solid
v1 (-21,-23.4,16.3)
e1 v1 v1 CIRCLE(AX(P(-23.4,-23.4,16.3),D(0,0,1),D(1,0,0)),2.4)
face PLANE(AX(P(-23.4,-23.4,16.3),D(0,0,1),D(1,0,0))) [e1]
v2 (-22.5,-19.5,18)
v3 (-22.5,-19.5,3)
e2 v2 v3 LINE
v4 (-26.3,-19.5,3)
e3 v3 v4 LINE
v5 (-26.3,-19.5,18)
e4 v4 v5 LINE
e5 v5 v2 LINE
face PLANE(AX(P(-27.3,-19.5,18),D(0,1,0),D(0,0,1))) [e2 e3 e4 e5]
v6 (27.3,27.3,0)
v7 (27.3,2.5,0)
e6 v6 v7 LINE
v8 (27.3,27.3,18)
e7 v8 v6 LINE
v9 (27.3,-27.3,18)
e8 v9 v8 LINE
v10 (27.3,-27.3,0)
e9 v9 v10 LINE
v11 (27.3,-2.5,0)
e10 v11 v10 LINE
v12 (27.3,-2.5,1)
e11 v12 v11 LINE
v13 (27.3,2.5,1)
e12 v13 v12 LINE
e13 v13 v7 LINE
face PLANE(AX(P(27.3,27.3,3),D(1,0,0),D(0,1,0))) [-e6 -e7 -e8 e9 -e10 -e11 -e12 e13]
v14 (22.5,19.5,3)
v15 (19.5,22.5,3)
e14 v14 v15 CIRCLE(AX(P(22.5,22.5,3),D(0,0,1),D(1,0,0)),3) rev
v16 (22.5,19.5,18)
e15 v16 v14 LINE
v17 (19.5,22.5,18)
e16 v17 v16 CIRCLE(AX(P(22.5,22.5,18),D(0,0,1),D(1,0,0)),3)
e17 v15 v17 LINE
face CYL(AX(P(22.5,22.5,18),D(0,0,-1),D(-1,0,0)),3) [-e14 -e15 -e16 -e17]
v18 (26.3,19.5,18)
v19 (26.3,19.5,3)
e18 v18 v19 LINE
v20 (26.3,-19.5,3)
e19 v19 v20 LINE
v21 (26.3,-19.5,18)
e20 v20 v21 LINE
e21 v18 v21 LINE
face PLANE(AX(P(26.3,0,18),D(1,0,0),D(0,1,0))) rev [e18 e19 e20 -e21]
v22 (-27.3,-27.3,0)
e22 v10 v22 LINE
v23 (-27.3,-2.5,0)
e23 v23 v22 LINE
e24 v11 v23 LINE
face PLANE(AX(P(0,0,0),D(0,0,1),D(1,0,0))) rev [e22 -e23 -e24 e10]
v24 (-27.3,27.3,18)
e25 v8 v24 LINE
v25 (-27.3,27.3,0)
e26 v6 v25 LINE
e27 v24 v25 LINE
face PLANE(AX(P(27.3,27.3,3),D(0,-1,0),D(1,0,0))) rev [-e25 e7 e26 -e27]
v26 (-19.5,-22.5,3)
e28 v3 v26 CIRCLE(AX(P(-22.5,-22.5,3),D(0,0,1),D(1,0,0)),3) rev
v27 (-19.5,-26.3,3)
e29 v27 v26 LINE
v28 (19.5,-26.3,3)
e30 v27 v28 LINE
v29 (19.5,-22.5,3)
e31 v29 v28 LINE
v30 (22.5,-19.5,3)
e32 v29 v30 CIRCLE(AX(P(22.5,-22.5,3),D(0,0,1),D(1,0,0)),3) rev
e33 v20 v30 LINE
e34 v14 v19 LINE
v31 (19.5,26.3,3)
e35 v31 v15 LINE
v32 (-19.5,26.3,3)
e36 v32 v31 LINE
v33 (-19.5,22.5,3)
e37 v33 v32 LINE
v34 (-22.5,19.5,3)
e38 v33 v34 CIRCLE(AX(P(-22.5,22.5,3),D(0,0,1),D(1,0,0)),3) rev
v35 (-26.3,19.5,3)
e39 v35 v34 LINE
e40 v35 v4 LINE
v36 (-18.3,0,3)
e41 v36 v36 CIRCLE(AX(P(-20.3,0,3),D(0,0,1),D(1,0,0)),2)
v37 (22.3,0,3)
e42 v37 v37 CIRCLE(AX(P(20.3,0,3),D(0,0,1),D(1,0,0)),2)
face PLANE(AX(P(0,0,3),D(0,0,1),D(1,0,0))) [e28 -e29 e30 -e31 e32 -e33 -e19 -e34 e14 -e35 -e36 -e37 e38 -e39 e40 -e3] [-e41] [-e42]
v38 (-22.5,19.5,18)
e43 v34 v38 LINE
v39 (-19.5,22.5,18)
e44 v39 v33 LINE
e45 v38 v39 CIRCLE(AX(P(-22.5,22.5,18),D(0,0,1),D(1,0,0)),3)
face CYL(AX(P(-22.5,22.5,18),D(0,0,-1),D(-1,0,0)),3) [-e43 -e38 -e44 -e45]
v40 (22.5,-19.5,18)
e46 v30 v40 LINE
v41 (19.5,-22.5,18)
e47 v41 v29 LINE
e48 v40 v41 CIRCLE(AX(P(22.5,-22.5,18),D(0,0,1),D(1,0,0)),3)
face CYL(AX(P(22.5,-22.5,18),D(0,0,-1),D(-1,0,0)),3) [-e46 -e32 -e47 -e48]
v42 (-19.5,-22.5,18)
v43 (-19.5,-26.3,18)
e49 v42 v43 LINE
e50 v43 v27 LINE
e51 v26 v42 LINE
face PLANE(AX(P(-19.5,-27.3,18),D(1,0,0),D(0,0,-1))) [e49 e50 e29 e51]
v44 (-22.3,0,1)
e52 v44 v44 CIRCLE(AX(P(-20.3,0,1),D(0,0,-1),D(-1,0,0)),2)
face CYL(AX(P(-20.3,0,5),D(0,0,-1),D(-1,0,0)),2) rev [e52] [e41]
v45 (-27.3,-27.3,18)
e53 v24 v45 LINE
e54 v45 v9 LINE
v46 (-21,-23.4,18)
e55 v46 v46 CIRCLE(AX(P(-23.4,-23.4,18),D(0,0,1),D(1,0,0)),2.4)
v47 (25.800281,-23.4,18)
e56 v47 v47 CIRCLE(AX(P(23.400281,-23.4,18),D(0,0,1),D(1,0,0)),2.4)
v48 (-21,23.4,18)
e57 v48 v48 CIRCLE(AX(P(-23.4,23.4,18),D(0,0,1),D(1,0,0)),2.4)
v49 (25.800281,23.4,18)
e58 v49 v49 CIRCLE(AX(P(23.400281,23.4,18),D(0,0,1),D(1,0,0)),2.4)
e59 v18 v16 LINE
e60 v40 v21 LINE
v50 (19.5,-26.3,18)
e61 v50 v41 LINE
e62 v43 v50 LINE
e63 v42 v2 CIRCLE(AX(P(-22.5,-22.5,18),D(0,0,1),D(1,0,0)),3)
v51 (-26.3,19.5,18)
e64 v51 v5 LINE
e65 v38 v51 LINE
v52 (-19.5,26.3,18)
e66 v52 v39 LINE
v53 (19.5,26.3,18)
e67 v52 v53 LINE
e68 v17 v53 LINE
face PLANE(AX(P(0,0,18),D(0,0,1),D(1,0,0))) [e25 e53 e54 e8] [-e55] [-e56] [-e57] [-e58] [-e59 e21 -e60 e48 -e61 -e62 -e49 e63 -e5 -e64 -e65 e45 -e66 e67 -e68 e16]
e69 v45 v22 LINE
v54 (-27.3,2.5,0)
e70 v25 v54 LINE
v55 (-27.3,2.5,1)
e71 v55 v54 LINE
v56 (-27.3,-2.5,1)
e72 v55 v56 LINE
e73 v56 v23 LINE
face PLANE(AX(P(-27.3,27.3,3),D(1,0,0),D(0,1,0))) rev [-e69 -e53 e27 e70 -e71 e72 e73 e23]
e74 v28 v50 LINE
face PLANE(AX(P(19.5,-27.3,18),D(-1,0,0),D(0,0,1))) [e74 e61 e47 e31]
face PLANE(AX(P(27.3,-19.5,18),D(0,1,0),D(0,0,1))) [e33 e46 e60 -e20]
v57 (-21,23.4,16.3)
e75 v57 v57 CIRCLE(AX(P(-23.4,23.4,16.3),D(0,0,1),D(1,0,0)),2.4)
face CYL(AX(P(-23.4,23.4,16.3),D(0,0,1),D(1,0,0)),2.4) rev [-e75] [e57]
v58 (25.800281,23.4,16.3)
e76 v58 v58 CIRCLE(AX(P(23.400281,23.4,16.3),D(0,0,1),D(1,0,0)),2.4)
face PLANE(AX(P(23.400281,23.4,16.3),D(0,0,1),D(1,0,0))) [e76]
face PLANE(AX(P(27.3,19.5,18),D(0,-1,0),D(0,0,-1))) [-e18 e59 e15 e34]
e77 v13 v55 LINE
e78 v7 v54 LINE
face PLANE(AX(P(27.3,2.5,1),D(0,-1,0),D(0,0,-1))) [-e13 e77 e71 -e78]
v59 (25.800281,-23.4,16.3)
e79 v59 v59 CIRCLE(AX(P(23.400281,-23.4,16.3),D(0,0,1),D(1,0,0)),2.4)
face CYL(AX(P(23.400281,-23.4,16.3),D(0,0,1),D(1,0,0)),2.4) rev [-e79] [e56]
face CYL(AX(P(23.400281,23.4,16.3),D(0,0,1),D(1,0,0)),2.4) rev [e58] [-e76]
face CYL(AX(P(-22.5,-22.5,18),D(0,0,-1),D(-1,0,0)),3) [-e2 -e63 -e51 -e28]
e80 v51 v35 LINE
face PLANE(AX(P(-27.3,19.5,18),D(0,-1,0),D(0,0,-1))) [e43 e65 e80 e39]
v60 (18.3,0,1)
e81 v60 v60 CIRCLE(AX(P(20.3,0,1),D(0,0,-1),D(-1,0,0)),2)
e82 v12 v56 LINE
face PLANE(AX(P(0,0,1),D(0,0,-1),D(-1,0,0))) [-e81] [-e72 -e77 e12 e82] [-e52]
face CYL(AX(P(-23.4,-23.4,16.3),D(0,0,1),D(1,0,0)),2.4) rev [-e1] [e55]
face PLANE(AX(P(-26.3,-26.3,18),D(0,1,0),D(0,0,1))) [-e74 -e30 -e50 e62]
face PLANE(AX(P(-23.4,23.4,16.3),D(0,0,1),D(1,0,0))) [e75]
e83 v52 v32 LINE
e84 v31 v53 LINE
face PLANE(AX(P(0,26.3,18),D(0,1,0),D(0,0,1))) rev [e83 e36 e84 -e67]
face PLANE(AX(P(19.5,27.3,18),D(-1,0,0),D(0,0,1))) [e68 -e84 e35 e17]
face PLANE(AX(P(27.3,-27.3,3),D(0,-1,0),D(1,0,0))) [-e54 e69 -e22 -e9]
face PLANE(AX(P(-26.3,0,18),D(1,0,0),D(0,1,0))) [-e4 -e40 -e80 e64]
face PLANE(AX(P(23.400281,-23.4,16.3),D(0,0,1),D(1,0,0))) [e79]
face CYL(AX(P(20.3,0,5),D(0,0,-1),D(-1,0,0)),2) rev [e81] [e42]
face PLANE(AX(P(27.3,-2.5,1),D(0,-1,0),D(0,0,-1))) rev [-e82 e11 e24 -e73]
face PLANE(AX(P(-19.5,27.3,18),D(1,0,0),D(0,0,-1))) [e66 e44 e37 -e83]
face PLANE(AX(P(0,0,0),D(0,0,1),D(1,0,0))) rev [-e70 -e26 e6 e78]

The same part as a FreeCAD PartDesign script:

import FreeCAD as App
import Part
import Sketcher
from FreeCAD import Vector
Q = App.Units.Quantity


def edges_at(feature, points):
    """Names of the edges that pass closest to the given points."""
    edges = feature.Shape.Edges
    near = lambda p: min(range(len(edges)), key=lambda i: edges[i].distToShape(Part.Vertex(*p))[0])
    return sorted({f"Edge{near(p) + 1}" for p in points})

doc = App.newDocument("Part")
body = doc.addObject("PartDesign::Body", "Body")

sketch1 = body.newObject("Sketcher::SketchObject", "Sketch")
sketch1.AttachmentSupport = (doc.getObject("XY_Plane"), [""])
sketch1.MapMode = "FlatFace"
sketch1.addGeometry([
    Part.LineSegment(Vector(-27.3, 27.3, 0), Vector(-27.3, -27.3, 0)),
    Part.LineSegment(Vector(-27.3, -27.3, 0), Vector(27.3, -27.3, 0)),
    Part.LineSegment(Vector(27.3, -27.3, 0), Vector(27.3, 27.3, 0)),
    Part.LineSegment(Vector(27.3, 27.3, 0), Vector(-27.3, 27.3, 0)),
], False)
sketch1.addConstraint([
    Sketcher.Constraint("Coincident", 0, 2, 1, 1),
    Sketcher.Constraint("Coincident", 1, 2, 2, 1),
    Sketcher.Constraint("Coincident", 2, 2, 3, 1),
    Sketcher.Constraint("Coincident", 3, 2, 0, 1),
    Sketcher.Constraint("Vertical", 0),
    Sketcher.Constraint("Horizontal", 1),
    Sketcher.Constraint("Vertical", 2),
    Sketcher.Constraint("Horizontal", 3),
    Sketcher.Constraint("Symmetric", 0, 2, 2, 2, -1, 1),
    Sketcher.Constraint("Equal", 3, 0),
    Sketcher.Constraint("DistanceX", 1, 1, 1, 2, Q("54.6 mm")),
])
pad1 = body.newObject("PartDesign::Pad", "Pad")
pad1.Profile = sketch1
pad1.Length = 3

sketch2 = body.newObject("Sketcher::SketchObject", "Sketch001")
sketch2.AttachmentSupport = (doc.getObject("XY_Plane"), [""])
sketch2.MapMode = "FlatFace"
sketch2.addGeometry([
    Part.LineSegment(Vector(27.3, 2.5, 0), Vector(27.3, -2.5, 0)),
    Part.LineSegment(Vector(27.3, -2.5, 0), Vector(-27.3, -2.5, 0)),
    Part.LineSegment(Vector(-27.3, -2.5, 0), Vector(-27.3, 2.5, 0)),
    Part.LineSegment(Vector(-27.3, 2.5, 0), Vector(27.3, 2.5, 0)),
], False)
sketch2.addConstraint([
    Sketcher.Constraint("Coincident", 0, 2, 1, 1),
    Sketcher.Constraint("Coincident", 1, 2, 2, 1),
    Sketcher.Constraint("Coincident", 2, 2, 3, 1),
    Sketcher.Constraint("Coincident", 3, 2, 0, 1),
    Sketcher.Constraint("Vertical", 0),
    Sketcher.Constraint("Horizontal", 1),
    Sketcher.Constraint("Vertical", 2),
    Sketcher.Constraint("Horizontal", 3),
    Sketcher.Constraint("Symmetric", 0, 2, 2, 2, -1, 1),
    Sketcher.Constraint("DistanceY", 0, 2, 0, 1, Q("5 mm")),
    Sketcher.Constraint("DistanceX", 1, 2, 1, 1, Q("54.6 mm")),
])
pocket1 = body.newObject("PartDesign::Pocket", "Pocket")
pocket1.Profile = sketch2
pocket1.Length = 1
pocket1.Reversed = True

sketch3 = body.newObject("Sketcher::SketchObject", "Sketch002")
sketch3.AttachmentSupport = (doc.getObject("XY_Plane"), [""])
sketch3.MapMode = "FlatFace"
sketch3.AttachmentOffset = App.Placement(Vector(0, 0, 3), App.Rotation())
sketch3.addGeometry([
    Part.LineSegment(Vector(27.3, 27.3, 0), Vector(-27.3, 27.3, 0)),
    Part.LineSegment(Vector(-27.3, 27.3, 0), Vector(-27.3, -27.3, 0)),
    Part.LineSegment(Vector(-27.3, -27.3, 0), Vector(27.3, -27.3, 0)),
    Part.LineSegment(Vector(27.3, -27.3, 0), Vector(27.3, 27.3, 0)),
    Part.LineSegment(Vector(-26.3, -26.3, 0), Vector(-26.3, 26.3, 0)),
    Part.LineSegment(Vector(-26.3, 26.3, 0), Vector(26.3, 26.3, 0)),
    Part.LineSegment(Vector(26.3, 26.3, 0), Vector(26.3, -26.3, 0)),
    Part.LineSegment(Vector(26.3, -26.3, 0), Vector(-26.3, -26.3, 0)),
], False)
sketch3.addConstraint([
    Sketcher.Constraint("Coincident", 0, 2, 1, 1),
    Sketcher.Constraint("Coincident", 1, 2, 2, 1),
    Sketcher.Constraint("Coincident", 2, 2, 3, 1),
    Sketcher.Constraint("Coincident", 3, 2, 0, 1),
    Sketcher.Constraint("Coincident", 4, 2, 5, 1),
    Sketcher.Constraint("Coincident", 5, 2, 6, 1),
    Sketcher.Constraint("Coincident", 6, 2, 7, 1),
    Sketcher.Constraint("Coincident", 7, 2, 4, 1),
    Sketcher.Constraint("Horizontal", 0),
    Sketcher.Constraint("Vertical", 1),
    Sketcher.Constraint("Horizontal", 2),
    Sketcher.Constraint("Vertical", 3),
    Sketcher.Constraint("Vertical", 4),
    Sketcher.Constraint("Horizontal", 5),
    Sketcher.Constraint("Vertical", 6),
    Sketcher.Constraint("Horizontal", 7),
    Sketcher.Constraint("Symmetric", 0, 2, 2, 2, -1, 1),
    Sketcher.Constraint("Symmetric", 4, 2, 6, 2, -1, 1),
    Sketcher.Constraint("Equal", 2, 1),
    Sketcher.Constraint("Equal", 7, 4),
    Sketcher.Constraint("DistanceX", 0, 2, 0, 1, Q("54.6 mm")),
    Sketcher.Constraint("DistanceX", 5, 1, 5, 2, Q("52.6 mm")),
])
pad2 = body.newObject("PartDesign::Pad", "Pad001")
pad2.Profile = sketch3
pad2.Length = 15

sketch4 = body.newObject("Sketcher::SketchObject", "Sketch003")
sketch4.AttachmentSupport = (doc.getObject("XY_Plane"), [""])
sketch4.MapMode = "FlatFace"
sketch4.AttachmentOffset = App.Placement(Vector(0, 0, 1), App.Rotation())
sketch4.addGeometry([
    Part.Circle(Vector(20.3, 0, 0), Vector(0, 0, 1), 2),
    Part.Circle(Vector(-20.3, 0, 0), Vector(0, 0, 1), 2),
], False)
sketch4.addConstraint([
    Sketcher.Constraint("Equal", 0, 1),
    Sketcher.Constraint("Symmetric", 0, 3, 1, 3, -1, 1),
    Sketcher.Constraint("PointOnObject", 0, 3, -1),
    Sketcher.Constraint("Diameter", 0, Q("4 mm")),
    Sketcher.Constraint("DistanceX", -1, 1, 0, 3, Q("20.3 mm")),
])
pocket2 = body.newObject("PartDesign::Pocket", "Pocket001")
pocket2.Profile = sketch4
pocket2.Length = 4
pocket2.Reversed = True

sketch5 = body.newObject("Sketcher::SketchObject", "Sketch004")
sketch5.AttachmentSupport = (doc.getObject("XY_Plane"), [""])
sketch5.MapMode = "FlatFace"
sketch5.addGeometry([
    Part.LineSegment(Vector(27.3, 27.3, 0), Vector(27.3, 19.5, 0)),
    Part.LineSegment(Vector(27.3, 19.5, 0), Vector(19.5, 19.5, 0)),
    Part.LineSegment(Vector(19.5, 19.5, 0), Vector(19.5, 27.3, 0)),
    Part.LineSegment(Vector(19.5, 27.3, 0), Vector(27.3, 27.3, 0)),
    Part.LineSegment(Vector(-19.5, 27.3, 0), Vector(-19.5, 19.5, 0)),
    Part.LineSegment(Vector(-19.5, 19.5, 0), Vector(-27.3, 19.5, 0)),
    Part.LineSegment(Vector(-27.3, 19.5, 0), Vector(-27.3, 27.3, 0)),
    Part.LineSegment(Vector(-27.3, 27.3, 0), Vector(-19.5, 27.3, 0)),
    Part.LineSegment(Vector(27.3, -19.5, 0), Vector(27.3, -27.3, 0)),
    Part.LineSegment(Vector(27.3, -27.3, 0), Vector(19.5, -27.3, 0)),
    Part.LineSegment(Vector(19.5, -27.3, 0), Vector(19.5, -19.5, 0)),
    Part.LineSegment(Vector(19.5, -19.5, 0), Vector(27.3, -19.5, 0)),
    Part.LineSegment(Vector(-19.5, -19.5, 0), Vector(-19.5, -27.3, 0)),
    Part.LineSegment(Vector(-19.5, -27.3, 0), Vector(-27.3, -27.3, 0)),
    Part.LineSegment(Vector(-27.3, -27.3, 0), Vector(-27.3, -19.5, 0)),
    Part.LineSegment(Vector(-27.3, -19.5, 0), Vector(-19.5, -19.5, 0)),
], False)
sketch5.addConstraint([
    Sketcher.Constraint("Coincident", 0, 2, 1, 1),
    Sketcher.Constraint("Coincident", 1, 2, 2, 1),
    Sketcher.Constraint("Coincident", 2, 2, 3, 1),
    Sketcher.Constraint("Coincident", 3, 2, 0, 1),
    Sketcher.Constraint("Coincident", 4, 2, 5, 1),
    Sketcher.Constraint("Coincident", 5, 2, 6, 1),
    Sketcher.Constraint("Coincident", 6, 2, 7, 1),
    Sketcher.Constraint("Coincident", 7, 2, 4, 1),
    Sketcher.Constraint("Coincident", 8, 2, 9, 1),
    Sketcher.Constraint("Coincident", 9, 2, 10, 1),
    Sketcher.Constraint("Coincident", 10, 2, 11, 1),
    Sketcher.Constraint("Coincident", 11, 2, 8, 1),
    Sketcher.Constraint("Coincident", 12, 2, 13, 1),
    Sketcher.Constraint("Coincident", 13, 2, 14, 1),
    Sketcher.Constraint("Coincident", 14, 2, 15, 1),
    Sketcher.Constraint("Coincident", 15, 2, 12, 1),
    Sketcher.Constraint("Vertical", 0),
    Sketcher.Constraint("Horizontal", 1),
    Sketcher.Constraint("Vertical", 2),
    Sketcher.Constraint("Horizontal", 3),
    Sketcher.Constraint("Vertical", 4),
    Sketcher.Constraint("Horizontal", 5),
    Sketcher.Constraint("Vertical", 6),
    Sketcher.Constraint("Horizontal", 7),
    Sketcher.Constraint("Vertical", 8),
    Sketcher.Constraint("Horizontal", 9),
    Sketcher.Constraint("Vertical", 10),
    Sketcher.Constraint("Horizontal", 11),
    Sketcher.Constraint("Vertical", 12),
    Sketcher.Constraint("Horizontal", 13),
    Sketcher.Constraint("Vertical", 14),
    Sketcher.Constraint("Horizontal", 15),
    Sketcher.Constraint("Symmetric", 6, 2, 8, 2, -1, 1),
    Sketcher.Constraint("Symmetric", 4, 2, 10, 2, -1, 1),
    Sketcher.Constraint("Symmetric", 2, 2, 12, 2, -1, 1),
    Sketcher.Constraint("Symmetric", 0, 2, 14, 2, -1, 1),
    Sketcher.Constraint("Symmetric", 1, 2, 4, 2, -2),
    Sketcher.Constraint("Symmetric", 3, 2, 6, 2, -2),
    Sketcher.Constraint("Equal", 15, 0),
    Sketcher.Constraint("DistanceX", 1, 2, 1, 1, Q("7.8 mm")),
    Sketcher.Constraint("DistanceX", 4, 2, 1, 2, Q("39 mm")),
    Sketcher.Constraint("DistanceY", 10, 2, 1, 2, Q("39 mm")),
])
pad3 = body.newObject("PartDesign::Pad", "Pad002")
pad3.Profile = sketch5
pad3.Length = 18

sketch6 = body.newObject("Sketcher::SketchObject", "Sketch005")
sketch6.AttachmentSupport = (doc.getObject("XY_Plane"), [""])
sketch6.MapMode = "FlatFace"
sketch6.AttachmentOffset = App.Placement(Vector(0, 0, 18), App.Rotation())
sketch6.addGeometry([
    Part.Circle(Vector(-23.4, -23.4, 0), Vector(0, 0, 1), 2.4),
    Part.Circle(Vector(-23.4, 23.4, 0), Vector(0, 0, 1), 2.4),
    Part.Circle(Vector(23.400281, 23.4, 0), Vector(0, 0, 1), 2.4),
    Part.Circle(Vector(23.400281, -23.4, 0), Vector(0, 0, 1), 2.4),
], False)
sketch6.addConstraint([
    Sketcher.Constraint("Equal", 0, 1),
    Sketcher.Constraint("Equal", 1, 2),
    Sketcher.Constraint("Equal", 2, 3),
    Sketcher.Constraint("Symmetric", 0, 3, 1, 3, -1),
    Sketcher.Constraint("Symmetric", 2, 3, 3, 3, -1),
    Sketcher.Constraint("Horizontal", 1, 3, 2, 3),
    Sketcher.Constraint("Diameter", 0, Q("4.8 mm")),
    Sketcher.Constraint("DistanceX", 0, 3, -1, 1, Q("23.4 mm")),
    Sketcher.Constraint("DistanceY", 0, 3, -1, 1, Q("23.4 mm")),
    Sketcher.Constraint("DistanceX", -1, 1, 2, 3, Q("23.400281 mm")),
])
pocket3 = body.newObject("PartDesign::Pocket", "Pocket002")
pocket3.Profile = sketch6
pocket3.Length = 1.7
doc.recompute()

fillet = body.newObject("PartDesign::Fillet", "Fillet")
fillet.Base = (pocket3, edges_at(pocket3, [
    (19.5, -19.5, 10.5),
    (-19.5, -19.5, 10.5),
    (19.5, 19.5, 10.5),
    (-19.5, 19.5, 10.5),
]))
fillet.Radius = 3

doc.recompute()
